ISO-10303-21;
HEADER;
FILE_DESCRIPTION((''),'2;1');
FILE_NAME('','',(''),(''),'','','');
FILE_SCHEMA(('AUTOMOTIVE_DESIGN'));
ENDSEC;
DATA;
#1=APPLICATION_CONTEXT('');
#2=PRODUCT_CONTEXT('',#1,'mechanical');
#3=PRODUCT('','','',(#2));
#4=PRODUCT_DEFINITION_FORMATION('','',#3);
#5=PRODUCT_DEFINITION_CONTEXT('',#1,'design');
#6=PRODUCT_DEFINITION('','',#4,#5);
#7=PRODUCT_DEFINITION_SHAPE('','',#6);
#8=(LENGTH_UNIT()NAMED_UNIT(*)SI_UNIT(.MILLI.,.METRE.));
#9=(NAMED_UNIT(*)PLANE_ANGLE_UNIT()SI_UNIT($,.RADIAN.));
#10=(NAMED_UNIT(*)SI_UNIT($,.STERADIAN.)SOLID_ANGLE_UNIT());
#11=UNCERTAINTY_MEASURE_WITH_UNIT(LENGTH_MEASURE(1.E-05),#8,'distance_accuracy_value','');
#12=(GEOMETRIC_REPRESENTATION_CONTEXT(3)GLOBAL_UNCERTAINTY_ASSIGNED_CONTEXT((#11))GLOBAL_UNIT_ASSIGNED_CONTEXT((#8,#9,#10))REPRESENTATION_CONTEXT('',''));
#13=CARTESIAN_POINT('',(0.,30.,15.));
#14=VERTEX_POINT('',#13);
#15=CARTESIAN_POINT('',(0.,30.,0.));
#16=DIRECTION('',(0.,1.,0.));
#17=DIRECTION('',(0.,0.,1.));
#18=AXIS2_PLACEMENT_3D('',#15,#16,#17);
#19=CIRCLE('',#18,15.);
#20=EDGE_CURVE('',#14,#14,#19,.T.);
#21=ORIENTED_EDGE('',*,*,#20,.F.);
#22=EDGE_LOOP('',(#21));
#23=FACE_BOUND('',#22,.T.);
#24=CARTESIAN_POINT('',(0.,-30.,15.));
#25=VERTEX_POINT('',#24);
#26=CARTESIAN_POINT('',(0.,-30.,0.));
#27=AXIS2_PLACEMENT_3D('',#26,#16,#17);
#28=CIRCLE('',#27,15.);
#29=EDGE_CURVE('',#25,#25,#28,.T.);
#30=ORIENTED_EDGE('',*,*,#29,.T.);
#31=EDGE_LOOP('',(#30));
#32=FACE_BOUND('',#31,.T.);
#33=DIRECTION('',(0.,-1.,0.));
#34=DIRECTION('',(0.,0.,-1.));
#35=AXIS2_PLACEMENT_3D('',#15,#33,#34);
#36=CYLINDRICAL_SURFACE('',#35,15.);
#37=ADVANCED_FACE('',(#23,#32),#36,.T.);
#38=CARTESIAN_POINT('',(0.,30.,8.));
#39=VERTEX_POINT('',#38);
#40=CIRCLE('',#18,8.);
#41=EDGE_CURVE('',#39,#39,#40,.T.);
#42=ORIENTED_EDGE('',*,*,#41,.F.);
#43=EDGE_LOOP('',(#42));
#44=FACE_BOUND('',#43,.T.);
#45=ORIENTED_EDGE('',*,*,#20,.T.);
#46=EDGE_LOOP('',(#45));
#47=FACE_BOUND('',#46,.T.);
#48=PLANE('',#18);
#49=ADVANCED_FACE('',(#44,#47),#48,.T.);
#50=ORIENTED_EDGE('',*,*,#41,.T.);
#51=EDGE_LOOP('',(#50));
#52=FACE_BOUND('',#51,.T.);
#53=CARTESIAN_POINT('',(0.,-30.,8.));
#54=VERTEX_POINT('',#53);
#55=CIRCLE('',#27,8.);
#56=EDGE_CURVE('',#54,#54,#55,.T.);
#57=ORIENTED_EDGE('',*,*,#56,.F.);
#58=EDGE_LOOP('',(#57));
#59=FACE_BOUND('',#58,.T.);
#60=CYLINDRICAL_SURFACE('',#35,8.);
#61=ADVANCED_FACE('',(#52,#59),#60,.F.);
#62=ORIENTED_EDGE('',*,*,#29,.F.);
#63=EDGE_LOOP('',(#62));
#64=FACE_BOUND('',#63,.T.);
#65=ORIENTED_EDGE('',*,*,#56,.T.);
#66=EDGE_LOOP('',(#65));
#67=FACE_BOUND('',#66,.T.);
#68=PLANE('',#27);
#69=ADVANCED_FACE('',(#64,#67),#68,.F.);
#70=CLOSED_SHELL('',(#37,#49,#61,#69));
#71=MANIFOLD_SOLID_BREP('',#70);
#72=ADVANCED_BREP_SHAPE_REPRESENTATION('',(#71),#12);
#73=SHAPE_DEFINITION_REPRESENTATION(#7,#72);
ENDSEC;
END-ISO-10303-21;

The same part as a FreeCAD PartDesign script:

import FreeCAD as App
import Part
import Sketcher
from FreeCAD import Vector
Q = App.Units.Quantity

doc = App.newDocument("Part")
params = doc.addObject("Spreadsheet::Sheet", "Params")
for row, (alias, value) in enumerate([
    ("sketch1_diameter", "30 mm"),
    ("sketch1_diameter2", "16 mm"),
    ("pad1_length", "60 mm"),
], start=1):
    params.set(f"A{row}", alias)
    params.set(f"B{row}", "=" + value)
    params.setAlias(f"B{row}", alias)

body = doc.addObject("PartDesign::Body", "Body")

# Sketch on XZ plane
sketch1 = doc.addObject("Sketcher::SketchObject", "Sketch")
body.addObject(sketch1)
sketch1.AttachmentSupport = (doc.XZ_Plane, [""])
sketch1.MapMode = "FlatFace"
sketch1.addGeometry([
    Part.Circle(Vector(0, 0, 0), Vector(0, 0, 1), 15),
    Part.Circle(Vector(0, 0, 0), Vector(0, 0, 1), 8),
], False)
sketch1.addConstraint([
    Sketcher.Constraint("Coincident", 0, 3, -1, 1),
    Sketcher.Constraint("Coincident", 1, 3, -1, 1),
    Sketcher.Constraint("Diameter", 0, Q("30 mm")),
    Sketcher.Constraint("Diameter", 1, Q("16 mm")),
])
sketch1.setExpression("Constraints[2]", "Params.sketch1_diameter")
sketch1.setExpression("Constraints[3]", "Params.sketch1_diameter2")
pad1 = doc.addObject("PartDesign::Pad", "Pad")
body.addObject(pad1)
pad1.Profile = sketch1
pad1.setExpression("Length", "Params.pad1_length")
pad1.Midplane = True

doc.recompute()
